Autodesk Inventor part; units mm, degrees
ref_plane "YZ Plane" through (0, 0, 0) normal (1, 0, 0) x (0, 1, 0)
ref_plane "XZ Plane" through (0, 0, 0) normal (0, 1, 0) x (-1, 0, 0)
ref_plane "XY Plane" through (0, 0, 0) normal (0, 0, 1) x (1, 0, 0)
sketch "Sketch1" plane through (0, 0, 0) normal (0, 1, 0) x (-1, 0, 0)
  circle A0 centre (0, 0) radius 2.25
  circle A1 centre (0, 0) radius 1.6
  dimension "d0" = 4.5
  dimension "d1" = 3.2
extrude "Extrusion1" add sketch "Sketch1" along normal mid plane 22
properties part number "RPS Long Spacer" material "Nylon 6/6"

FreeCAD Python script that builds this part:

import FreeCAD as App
import Part
import Sketcher
from FreeCAD import Vector
Q = App.Units.Quantity

doc = App.newDocument("Part")
body = doc.addObject("PartDesign::Body", "Body")

sketch1 = doc.addObject("Sketcher::SketchObject", "Sketch")
body.addObject(sketch1)
sketch1.AttachmentSupport = (doc.XZ_Plane, [""])
sketch1.MapMode = "FlatFace"
sketch1.addGeometry([
    Part.Circle(Vector(0, 0, 0), Vector(0, 0, 1), 2.2),
    Part.Circle(Vector(0, 0, 0), Vector(0, 0, 1), 1.6),
], False)
sketch1.addConstraint([
    Sketcher.Constraint("Coincident", 0, 3, -1, 1),
    Sketcher.Constraint("Coincident", 1, 3, -1, 1),
    Sketcher.Constraint("Diameter", 0, Q("4.5 mm")),
    Sketcher.Constraint("Diameter", 1, Q("3.2 mm")),
])
pad1 = doc.addObject("PartDesign::Pad", "Pad")
body.addObject(pad1)
pad1.Profile = sketch1
pad1.Length = 22
pad1.Midplane = True

doc.recompute()
